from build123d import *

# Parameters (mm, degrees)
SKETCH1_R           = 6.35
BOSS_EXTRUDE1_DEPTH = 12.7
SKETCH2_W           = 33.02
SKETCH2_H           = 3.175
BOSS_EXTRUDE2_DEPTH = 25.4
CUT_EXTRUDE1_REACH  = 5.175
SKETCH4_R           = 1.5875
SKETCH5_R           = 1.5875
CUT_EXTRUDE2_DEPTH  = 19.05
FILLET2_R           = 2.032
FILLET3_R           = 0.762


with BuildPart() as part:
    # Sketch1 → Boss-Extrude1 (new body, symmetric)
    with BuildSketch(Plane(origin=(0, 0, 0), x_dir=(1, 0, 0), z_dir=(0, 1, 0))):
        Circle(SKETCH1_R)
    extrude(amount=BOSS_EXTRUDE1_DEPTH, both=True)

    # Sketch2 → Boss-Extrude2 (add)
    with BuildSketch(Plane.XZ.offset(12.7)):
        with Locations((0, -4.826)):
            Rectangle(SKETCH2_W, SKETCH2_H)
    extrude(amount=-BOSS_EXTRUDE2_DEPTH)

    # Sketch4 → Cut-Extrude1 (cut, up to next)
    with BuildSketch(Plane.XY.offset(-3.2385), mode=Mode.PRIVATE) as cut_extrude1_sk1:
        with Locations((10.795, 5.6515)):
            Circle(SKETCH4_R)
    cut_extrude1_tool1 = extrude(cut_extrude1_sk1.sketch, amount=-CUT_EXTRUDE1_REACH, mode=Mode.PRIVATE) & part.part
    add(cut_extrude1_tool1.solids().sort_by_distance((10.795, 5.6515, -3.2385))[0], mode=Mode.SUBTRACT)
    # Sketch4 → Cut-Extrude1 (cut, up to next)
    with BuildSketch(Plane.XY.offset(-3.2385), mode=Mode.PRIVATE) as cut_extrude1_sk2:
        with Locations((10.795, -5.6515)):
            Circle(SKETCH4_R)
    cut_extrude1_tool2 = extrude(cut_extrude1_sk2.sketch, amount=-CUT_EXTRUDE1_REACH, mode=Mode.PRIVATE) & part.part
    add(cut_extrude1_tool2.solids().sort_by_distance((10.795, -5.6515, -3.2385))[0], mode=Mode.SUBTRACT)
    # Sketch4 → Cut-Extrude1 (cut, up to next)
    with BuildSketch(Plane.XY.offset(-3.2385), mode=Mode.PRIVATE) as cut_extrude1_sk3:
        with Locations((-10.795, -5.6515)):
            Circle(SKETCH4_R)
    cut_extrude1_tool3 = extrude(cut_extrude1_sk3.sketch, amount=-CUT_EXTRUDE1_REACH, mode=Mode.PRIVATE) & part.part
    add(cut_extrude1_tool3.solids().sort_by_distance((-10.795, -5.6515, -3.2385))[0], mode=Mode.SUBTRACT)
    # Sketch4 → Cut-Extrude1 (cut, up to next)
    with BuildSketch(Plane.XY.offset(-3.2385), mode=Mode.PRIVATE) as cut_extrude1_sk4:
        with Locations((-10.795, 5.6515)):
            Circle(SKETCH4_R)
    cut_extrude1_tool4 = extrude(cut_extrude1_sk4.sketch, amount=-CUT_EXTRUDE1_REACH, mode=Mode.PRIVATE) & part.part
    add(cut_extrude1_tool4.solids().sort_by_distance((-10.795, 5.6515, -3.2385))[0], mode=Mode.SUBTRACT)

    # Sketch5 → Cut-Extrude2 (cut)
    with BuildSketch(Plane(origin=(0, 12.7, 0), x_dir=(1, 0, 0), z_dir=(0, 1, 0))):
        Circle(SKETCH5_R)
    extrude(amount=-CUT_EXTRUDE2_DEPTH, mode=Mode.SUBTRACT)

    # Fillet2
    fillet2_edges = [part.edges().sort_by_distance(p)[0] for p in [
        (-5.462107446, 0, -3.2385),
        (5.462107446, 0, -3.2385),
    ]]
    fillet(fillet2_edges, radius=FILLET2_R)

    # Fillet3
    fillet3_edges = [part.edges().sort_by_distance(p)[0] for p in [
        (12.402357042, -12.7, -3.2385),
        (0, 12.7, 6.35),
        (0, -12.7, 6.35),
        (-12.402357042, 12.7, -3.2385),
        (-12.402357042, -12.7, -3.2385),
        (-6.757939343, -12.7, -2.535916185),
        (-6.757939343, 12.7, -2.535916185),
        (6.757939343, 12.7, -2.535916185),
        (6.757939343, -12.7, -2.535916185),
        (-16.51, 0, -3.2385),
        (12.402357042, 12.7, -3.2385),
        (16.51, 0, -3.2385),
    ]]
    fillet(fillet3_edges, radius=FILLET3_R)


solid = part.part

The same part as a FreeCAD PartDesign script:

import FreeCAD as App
import Part
import Sketcher

V = App.Vector
Q = App.Units.Quantity


def edges_at(feature, points):
    """Names of the edges that pass closest to the given points."""
    edges = feature.Shape.Edges
    near = lambda p: min(range(len(edges)), key=lambda i: edges[i].distToShape(Part.Vertex(*p))[0])
    return sorted({f"Edge{near(p) + 1}" for p in points})

doc = App.newDocument("Part")
body = doc.addObject("PartDesign::Body", "Body")

sketch1 = doc.addObject("Sketcher::SketchObject", "Sketch")
body.addObject(sketch1)
sketch1.AttachmentSupport = (doc.XZ_Plane, [""])
sketch1.MapMode = "FlatFace"
sketch1.addGeometry(Part.Circle(V(0, 0, 0), V(0, 0, 1), 6), False)
sketch1.addConstraint([
    Sketcher.Constraint("Coincident", 0, 3, -1, 1),
    Sketcher.Constraint("Diameter", 0, Q("0.5 in")),
])
pad1 = doc.addObject("PartDesign::Pad", "Pad")
body.addObject(pad1)
pad1.Profile = sketch1
pad1.Length = Q("1 in")
pad1.Midplane = True

sketch2 = doc.addObject("Sketcher::SketchObject", "Sketch001")
body.addObject(sketch2)
sketch2.AttachmentSupport = (doc.XZ_Plane, [""])
sketch2.MapMode = "FlatFace"
sketch2.AttachmentOffset = App.Placement(V(0, 0, 0.5 * 25.4), App.Rotation())
sketch2.addGeometry([
    Part.LineSegment(V(-16.5, -3.2, 0), V(-16.5, -6.4, 0)),
    Part.LineSegment(V(-16.5, -6.4, 0), V(16.5, -6.4, 0)),
    Part.LineSegment(V(16.5, -6.4, 0), V(16.5, -3.2, 0)),
    Part.LineSegment(V(16.5, -3.2, 0), V(-16.5, -3.2, 0)),
], False)
sketch2.addConstraint([
    Sketcher.Constraint("Coincident", 0, 2, 1, 1),
    Sketcher.Constraint("Coincident", 1, 2, 2, 1),
    Sketcher.Constraint("Coincident", 2, 2, 3, 1),
    Sketcher.Constraint("Coincident", 3, 2, 0, 1),
    Sketcher.Constraint("Vertical", 0),
    Sketcher.Constraint("Horizontal", 1),
    Sketcher.Constraint("Vertical", 2),
    Sketcher.Constraint("Horizontal", 3),
    Sketcher.Constraint("DistanceX", 1, 1, 1, 2, Q("1.3 in")),
    Sketcher.Constraint("DistanceY", 0, 2, 0, 1, Q("0.125 in")),
    Sketcher.Constraint("DistanceX", 0, 2, -1, 1, Q("0.65 in")),
    Sketcher.Constraint("DistanceY", 0, 2, -1, 1, Q("0.2525 in")),
])
pad2 = doc.addObject("PartDesign::Pad", "Pad001")
body.addObject(pad2)
pad2.Profile = sketch2
pad2.Length = Q("1 in")
pad2.Reversed = True

sketch3 = doc.addObject("Sketcher::SketchObject", "Sketch002")
body.addObject(sketch3)
sketch3.AttachmentSupport = (doc.XY_Plane, [""])
sketch3.MapMode = "FlatFace"
sketch3.AttachmentOffset = App.Placement(V(0, 0, -0.1275 * 25.4), App.Rotation())
sketch3.addGeometry(Part.Circle(V(10.8, 5.7, 0), V(0, 0, 1), 1.6), False)
sketch3.addConstraint([
    Sketcher.Constraint("Diameter", 0, Q("0.125 in")),
    Sketcher.Constraint("DistanceX", -1, 1, 0, 3, Q("0.425 in")),
    Sketcher.Constraint("DistanceY", -1, 1, 0, 3, Q("0.2225 in")),
])
pocket1 = doc.addObject("PartDesign::Pocket", "Pocket")
body.addObject(pocket1)
pocket1.Profile = sketch3
pocket1.Type = "UpToFirst"

sketch4 = doc.addObject("Sketcher::SketchObject", "Sketch003")
body.addObject(sketch4)
sketch4.AttachmentSupport = (doc.XY_Plane, [""])
sketch4.MapMode = "FlatFace"
sketch4.AttachmentOffset = App.Placement(V(0, 0, -0.1275 * 25.4), App.Rotation())
sketch4.addGeometry(Part.Circle(V(10.8, -5.7, 0), V(0, 0, 1), 1.6), False)
sketch4.addConstraint([
    Sketcher.Constraint("Diameter", 0, Q("0.125 in")),
    Sketcher.Constraint("DistanceX", -1, 1, 0, 3, Q("0.425 in")),
    Sketcher.Constraint("DistanceY", 0, 3, -1, 1, Q("0.2225 in")),
])
pocket2 = doc.addObject("PartDesign::Pocket", "Pocket001")
body.addObject(pocket2)
pocket2.Profile = sketch4
pocket2.Type = "UpToFirst"

sketch5 = doc.addObject("Sketcher::SketchObject", "Sketch004")
body.addObject(sketch5)
sketch5.AttachmentSupport = (doc.XY_Plane, [""])
sketch5.MapMode = "FlatFace"
sketch5.AttachmentOffset = App.Placement(V(0, 0, -0.1275 * 25.4), App.Rotation())
sketch5.addGeometry(Part.Circle(V(-10.8, -5.7, 0), V(0, 0, 1), 1.6), False)
sketch5.addConstraint([
    Sketcher.Constraint("Diameter", 0, Q("0.125 in")),
    Sketcher.Constraint("DistanceX", 0, 3, -1, 1, Q("0.425 in")),
    Sketcher.Constraint("DistanceY", 0, 3, -1, 1, Q("0.2225 in")),
])
pocket3 = doc.addObject("PartDesign::Pocket", "Pocket002")
body.addObject(pocket3)
pocket3.Profile = sketch5
pocket3.Type = "UpToFirst"

sketch6 = doc.addObject("Sketcher::SketchObject", "Sketch005")
body.addObject(sketch6)
sketch6.AttachmentSupport = (doc.XY_Plane, [""])
sketch6.MapMode = "FlatFace"
sketch6.AttachmentOffset = App.Placement(V(0, 0, -0.1275 * 25.4), App.Rotation())
sketch6.addGeometry(Part.Circle(V(-10.8, 5.7, 0), V(0, 0, 1), 1.6), False)
sketch6.addConstraint([
    Sketcher.Constraint("Diameter", 0, Q("0.125 in")),
    Sketcher.Constraint("DistanceX", 0, 3, -1, 1, Q("0.425 in")),
    Sketcher.Constraint("DistanceY", -1, 1, 0, 3, Q("0.2225 in")),
])
pocket4 = doc.addObject("PartDesign::Pocket", "Pocket003")
body.addObject(pocket4)
pocket4.Profile = sketch6
pocket4.Type = "UpToFirst"

sketch7 = doc.addObject("Sketcher::SketchObject", "Sketch006")
body.addObject(sketch7)
sketch7.AttachmentSupport = (doc.XZ_Plane, [""])
sketch7.MapMode = "FlatFace"
sketch7.AttachmentOffset = App.Placement(V(0, 0, -0.5 * 25.4), App.Rotation())
sketch7.addGeometry(Part.Circle(V(0, 0, 0), V(0, 0, 1), 1.6), False)
sketch7.addConstraint([
    Sketcher.Constraint("Coincident", 0, 3, -1, 1),
    Sketcher.Constraint("Diameter", 0, Q("0.125 in")),
])
pocket5 = doc.addObject("PartDesign::Pocket", "Pocket004")
body.addObject(pocket5)
pocket5.Profile = sketch7
pocket5.Length = Q("0.75 in")
pocket5.Reversed = True
doc.recompute()

fillet = doc.addObject("PartDesign::Fillet", "Fillet")
body.addObject(fillet)
fillet.Base = (pocket5, edges_at(pocket5, [(-5.462, 0, -3.239), (5.462, 0, -3.239)]))
fillet.Radius = Q("0.08 in")
doc.recompute()

fillet2 = doc.addObject("PartDesign::Fillet", "Fillet001")
body.addObject(fillet2)
fillet2.Base = (fillet, edges_at(fillet, [
    (12.402, -12.7, -3.239),
    (0, 12.7, 6.35),
    (0, -12.7, 6.35),
    (-12.402, 12.7, -3.239),
    (-12.402, -12.7, -3.239),
    (-6.758, -12.7, -2.536),
    (-6.758, 12.7, -2.536),
    (6.758, 12.7, -2.536),
    (6.758, -12.7, -2.536),
    (-16.51, 0, -3.239),
    (12.402, 12.7, -3.239),
    (16.51, 0, -3.239),
]))
fillet2.Radius = Q("0.03 in")

doc.recompute()
